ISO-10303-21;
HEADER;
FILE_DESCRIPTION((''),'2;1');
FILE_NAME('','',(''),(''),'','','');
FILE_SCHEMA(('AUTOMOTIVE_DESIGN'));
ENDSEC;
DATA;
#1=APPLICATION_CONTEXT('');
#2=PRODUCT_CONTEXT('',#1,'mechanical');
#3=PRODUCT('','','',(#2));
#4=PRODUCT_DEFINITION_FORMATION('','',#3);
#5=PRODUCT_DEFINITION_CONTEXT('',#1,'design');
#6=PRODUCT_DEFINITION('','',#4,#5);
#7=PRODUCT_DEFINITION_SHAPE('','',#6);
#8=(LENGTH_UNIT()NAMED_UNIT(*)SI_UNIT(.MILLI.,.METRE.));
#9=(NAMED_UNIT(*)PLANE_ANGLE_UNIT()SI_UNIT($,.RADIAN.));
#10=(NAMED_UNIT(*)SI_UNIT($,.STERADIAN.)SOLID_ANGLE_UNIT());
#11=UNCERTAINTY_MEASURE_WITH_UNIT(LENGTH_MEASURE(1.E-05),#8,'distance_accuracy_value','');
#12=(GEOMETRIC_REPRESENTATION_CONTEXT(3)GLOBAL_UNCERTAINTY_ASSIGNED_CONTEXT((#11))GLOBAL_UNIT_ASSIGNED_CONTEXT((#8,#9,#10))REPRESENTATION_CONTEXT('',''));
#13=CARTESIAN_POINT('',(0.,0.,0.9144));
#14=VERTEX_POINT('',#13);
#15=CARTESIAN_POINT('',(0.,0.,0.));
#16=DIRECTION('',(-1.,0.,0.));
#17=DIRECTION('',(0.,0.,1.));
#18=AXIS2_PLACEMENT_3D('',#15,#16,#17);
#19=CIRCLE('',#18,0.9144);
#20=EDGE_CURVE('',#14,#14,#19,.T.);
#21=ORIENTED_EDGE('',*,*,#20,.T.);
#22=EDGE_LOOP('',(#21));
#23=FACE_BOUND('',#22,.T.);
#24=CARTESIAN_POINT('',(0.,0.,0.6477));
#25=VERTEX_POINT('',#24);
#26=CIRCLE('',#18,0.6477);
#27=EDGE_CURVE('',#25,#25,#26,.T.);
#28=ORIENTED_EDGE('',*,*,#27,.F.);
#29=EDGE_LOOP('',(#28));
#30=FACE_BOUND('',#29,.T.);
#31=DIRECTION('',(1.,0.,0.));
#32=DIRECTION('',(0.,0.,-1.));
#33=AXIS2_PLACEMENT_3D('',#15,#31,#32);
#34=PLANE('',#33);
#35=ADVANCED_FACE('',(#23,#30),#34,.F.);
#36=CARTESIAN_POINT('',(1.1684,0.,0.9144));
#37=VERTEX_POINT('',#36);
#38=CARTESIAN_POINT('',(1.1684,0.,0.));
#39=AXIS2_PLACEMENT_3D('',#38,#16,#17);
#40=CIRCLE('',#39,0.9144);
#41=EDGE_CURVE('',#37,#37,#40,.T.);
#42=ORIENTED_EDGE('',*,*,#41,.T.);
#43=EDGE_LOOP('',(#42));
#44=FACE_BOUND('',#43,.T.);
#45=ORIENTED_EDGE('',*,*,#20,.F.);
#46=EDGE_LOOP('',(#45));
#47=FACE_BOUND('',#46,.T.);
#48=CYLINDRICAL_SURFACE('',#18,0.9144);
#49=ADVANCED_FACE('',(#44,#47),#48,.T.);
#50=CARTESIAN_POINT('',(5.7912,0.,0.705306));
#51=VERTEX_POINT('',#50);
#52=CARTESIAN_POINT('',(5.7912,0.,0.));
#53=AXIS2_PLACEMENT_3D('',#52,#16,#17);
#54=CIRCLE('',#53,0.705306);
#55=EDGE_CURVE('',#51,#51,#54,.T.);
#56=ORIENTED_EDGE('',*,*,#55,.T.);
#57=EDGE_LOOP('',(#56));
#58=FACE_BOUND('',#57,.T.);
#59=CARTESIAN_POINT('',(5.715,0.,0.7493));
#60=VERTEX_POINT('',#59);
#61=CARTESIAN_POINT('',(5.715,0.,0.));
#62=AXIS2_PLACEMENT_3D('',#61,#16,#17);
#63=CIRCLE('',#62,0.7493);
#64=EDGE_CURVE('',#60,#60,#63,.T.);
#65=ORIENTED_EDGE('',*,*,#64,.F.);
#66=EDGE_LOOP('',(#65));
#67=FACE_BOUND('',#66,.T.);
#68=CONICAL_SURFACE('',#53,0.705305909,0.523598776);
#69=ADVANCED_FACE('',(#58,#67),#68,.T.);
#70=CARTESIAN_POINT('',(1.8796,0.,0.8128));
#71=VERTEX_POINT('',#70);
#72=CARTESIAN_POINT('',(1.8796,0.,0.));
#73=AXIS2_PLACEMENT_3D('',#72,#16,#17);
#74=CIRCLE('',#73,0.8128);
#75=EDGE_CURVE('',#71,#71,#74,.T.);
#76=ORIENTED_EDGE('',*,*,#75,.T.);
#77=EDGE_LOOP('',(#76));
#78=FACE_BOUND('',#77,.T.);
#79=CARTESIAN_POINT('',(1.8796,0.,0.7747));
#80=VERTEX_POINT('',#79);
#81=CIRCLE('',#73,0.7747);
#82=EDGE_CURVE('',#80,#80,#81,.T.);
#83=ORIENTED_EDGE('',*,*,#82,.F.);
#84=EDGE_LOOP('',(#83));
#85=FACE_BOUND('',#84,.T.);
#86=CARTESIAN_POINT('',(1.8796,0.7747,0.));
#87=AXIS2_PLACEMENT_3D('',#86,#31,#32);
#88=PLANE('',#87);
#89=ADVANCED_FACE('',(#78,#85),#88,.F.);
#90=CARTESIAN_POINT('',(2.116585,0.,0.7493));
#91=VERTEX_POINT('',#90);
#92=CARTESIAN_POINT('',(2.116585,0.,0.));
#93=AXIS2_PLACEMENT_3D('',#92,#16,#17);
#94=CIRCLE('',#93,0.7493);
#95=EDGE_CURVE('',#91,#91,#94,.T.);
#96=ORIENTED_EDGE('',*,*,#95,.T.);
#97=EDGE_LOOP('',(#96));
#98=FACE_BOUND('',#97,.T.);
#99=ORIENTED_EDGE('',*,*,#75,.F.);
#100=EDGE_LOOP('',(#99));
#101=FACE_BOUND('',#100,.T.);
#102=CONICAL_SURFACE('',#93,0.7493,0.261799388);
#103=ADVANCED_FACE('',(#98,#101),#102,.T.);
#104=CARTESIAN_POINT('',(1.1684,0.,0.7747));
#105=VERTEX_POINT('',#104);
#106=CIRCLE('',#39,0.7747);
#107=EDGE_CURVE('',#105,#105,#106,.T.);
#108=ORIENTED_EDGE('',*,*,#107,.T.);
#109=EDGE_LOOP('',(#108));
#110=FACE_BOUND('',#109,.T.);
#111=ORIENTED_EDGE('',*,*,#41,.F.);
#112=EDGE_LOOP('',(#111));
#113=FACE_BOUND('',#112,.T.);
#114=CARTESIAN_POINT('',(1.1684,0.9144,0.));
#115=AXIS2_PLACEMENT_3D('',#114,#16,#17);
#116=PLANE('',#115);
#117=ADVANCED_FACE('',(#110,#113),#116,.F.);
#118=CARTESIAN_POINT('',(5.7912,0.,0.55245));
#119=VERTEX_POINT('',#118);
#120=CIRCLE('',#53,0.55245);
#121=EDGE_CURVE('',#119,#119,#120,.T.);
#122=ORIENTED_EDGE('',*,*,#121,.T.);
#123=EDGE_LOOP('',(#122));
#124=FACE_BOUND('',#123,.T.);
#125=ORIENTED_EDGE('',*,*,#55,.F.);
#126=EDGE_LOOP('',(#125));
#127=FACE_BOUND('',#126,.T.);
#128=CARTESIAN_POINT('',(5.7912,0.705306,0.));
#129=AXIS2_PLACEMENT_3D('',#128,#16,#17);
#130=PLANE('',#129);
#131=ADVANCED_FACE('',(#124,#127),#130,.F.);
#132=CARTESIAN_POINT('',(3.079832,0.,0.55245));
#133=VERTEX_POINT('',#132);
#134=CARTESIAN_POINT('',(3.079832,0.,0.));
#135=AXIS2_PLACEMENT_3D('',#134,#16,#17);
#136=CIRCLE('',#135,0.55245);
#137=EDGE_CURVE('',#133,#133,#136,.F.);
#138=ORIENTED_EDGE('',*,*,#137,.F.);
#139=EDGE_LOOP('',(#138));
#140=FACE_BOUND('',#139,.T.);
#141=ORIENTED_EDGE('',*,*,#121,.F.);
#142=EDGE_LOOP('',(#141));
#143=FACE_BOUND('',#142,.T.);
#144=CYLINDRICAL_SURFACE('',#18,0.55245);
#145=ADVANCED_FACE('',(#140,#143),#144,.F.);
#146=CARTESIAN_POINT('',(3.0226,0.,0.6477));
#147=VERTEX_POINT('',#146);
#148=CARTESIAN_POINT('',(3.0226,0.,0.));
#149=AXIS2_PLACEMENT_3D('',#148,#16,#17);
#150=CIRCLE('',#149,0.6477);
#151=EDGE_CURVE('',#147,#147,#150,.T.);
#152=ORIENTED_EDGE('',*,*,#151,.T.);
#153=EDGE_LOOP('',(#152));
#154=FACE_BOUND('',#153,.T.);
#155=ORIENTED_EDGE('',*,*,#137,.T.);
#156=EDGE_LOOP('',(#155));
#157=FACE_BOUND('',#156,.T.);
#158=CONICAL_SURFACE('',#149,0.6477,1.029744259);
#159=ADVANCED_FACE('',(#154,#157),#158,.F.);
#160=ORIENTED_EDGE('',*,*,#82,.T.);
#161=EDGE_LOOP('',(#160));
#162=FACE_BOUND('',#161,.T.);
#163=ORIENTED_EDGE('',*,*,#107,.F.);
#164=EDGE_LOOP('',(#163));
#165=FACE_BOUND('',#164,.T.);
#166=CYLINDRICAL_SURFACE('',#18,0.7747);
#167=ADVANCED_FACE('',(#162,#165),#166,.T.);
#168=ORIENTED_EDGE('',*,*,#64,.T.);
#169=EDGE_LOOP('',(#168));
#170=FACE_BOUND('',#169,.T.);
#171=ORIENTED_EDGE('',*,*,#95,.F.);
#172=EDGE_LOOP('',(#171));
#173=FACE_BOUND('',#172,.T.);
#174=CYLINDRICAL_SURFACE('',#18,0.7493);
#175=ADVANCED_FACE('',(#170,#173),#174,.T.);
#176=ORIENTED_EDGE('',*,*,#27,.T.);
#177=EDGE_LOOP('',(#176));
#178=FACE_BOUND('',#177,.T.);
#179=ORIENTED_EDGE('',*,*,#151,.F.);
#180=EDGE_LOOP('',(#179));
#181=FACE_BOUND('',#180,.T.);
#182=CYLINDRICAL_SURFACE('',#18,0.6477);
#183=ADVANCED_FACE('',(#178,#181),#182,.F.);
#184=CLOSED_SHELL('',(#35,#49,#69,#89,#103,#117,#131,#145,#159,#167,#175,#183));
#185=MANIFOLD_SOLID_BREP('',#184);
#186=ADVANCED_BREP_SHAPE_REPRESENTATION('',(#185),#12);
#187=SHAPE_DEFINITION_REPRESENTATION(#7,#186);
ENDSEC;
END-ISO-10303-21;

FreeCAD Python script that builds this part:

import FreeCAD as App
import Part
import Sketcher

V = App.Vector
Q = App.Units.Quantity


def add_polygon(sketch, points):
    """Adds a closed chain of lines whose ends are joined by coincident constraints."""
    first, n = sketch.GeometryCount, len(points)
    for a, b in zip(points, points[1:] + points[:1]):
        sketch.addGeometry(Part.LineSegment(App.Vector(*a, 0), App.Vector(*b, 0)), False)
    for i in range(n):
        sketch.addConstraint(Sketcher.Constraint("Coincident", first + i, 2, first + (i + 1) % n, 1))

doc = App.newDocument("Part")
body = doc.addObject("PartDesign::Body", "Body")

# Sketch on XY plane
sketch1 = doc.addObject("Sketcher::SketchObject", "Sketch")
body.addObject(sketch1)
sketch1.AttachmentSupport = (doc.XY_Plane, [""])
sketch1.MapMode = "FlatFace"
add_polygon(sketch1, [(0, 0.9144), (0, 0), (5.7912, 0), (5.7912, 0.705306), (5.715, 0.7493), (2.116585, 0.7493), (1.8796, 0.8128), (1.8796, 0.7747), (1.1684, 0.7747), (1.1684, 0.9144)])  # lines 0-9
sketch1.addConstraint([
    Sketcher.Constraint("Vertical", 0),
    Sketcher.Constraint("Horizontal", 1),
    Sketcher.Constraint("Vertical", 2),
    Sketcher.Constraint("Horizontal", 4),
    Sketcher.Constraint("Vertical", 6),
    Sketcher.Constraint("Horizontal", 7),
    Sketcher.Constraint("Vertical", 8),
    Sketcher.Constraint("Horizontal", 9),
    Sketcher.Constraint("Coincident", 0, 2, -1, 1),
    Sketcher.Constraint("Angle", 3, Q("150 deg")),
    Sketcher.Constraint("Angle", 5, Q("165 deg")),
    Sketcher.Constraint("DistanceX", 1, 1, 1, 2, Q("0.228 in")),
    Sketcher.Constraint("DistanceX", 7, 2, 7, 1, Q("0.028 in")),
    Sketcher.Constraint("DistanceX", 9, 2, 9, 1, Q("0.046 in")),
    Sketcher.Constraint("DistanceY", 0, 2, 0, 1, Q("0.036 in")),
    Sketcher.Constraint("DistanceY", 6, 2, 6, 1, Q("0.0015 in")),
    Sketcher.Constraint("DistanceY", 8, 1, 8, 2, Q("0.0055 in")),
    Sketcher.Constraint("DistanceX", -1, 1, 3, 2, Q("0.225 in")),
    Sketcher.Constraint("DistanceY", 4, 2, 6, 2, Q("0.001 in")),
])
revolution = doc.addObject("PartDesign::Revolution", "Revolution")
body.addObject(revolution)
revolution.Profile = sketch1
revolution.ReferenceAxis = (sketch1, ["H_Axis"])
revolution.Angle = 360

# Sketch on YZ plane
sketch2 = doc.addObject("Sketcher::SketchObject", "Sketch001")
body.addObject(sketch2)
sketch2.AttachmentSupport = (doc.YZ_Plane, [""])
sketch2.MapMode = "FlatFace"
sketch2.addGeometry(Part.Circle(V(0, 0, 0), V(0, 0, 1), 0.6477), False)
sketch2.addConstraint([
    Sketcher.Constraint("Coincident", 0, 3, -1, 1),
    Sketcher.Constraint("Diameter", 0, Q("0.051 in")),
])
doc.recompute()
hole = doc.addObject("PartDesign::Hole", "Hole")
body.addObject(hole)
hole.Profile = sketch2
hole.ThreadType = "None"
hole.Diameter = Q("0.051 in")
hole.DepthType = "Dimension"
hole.Depth = Q("0.119 in")
hole.DrillPoint = "Angled"
hole.DrillPointAngle = 118
hole.Reversed = True

# Sketch on YZ plane
sketch3 = doc.addObject("Sketcher::SketchObject", "Sketch002")
body.addObject(sketch3)
sketch3.AttachmentSupport = (doc.YZ_Plane, [""])
sketch3.MapMode = "FlatFace"
sketch3.addGeometry(Part.Circle(V(0, 0, 0), V(0, 0, 1), 0.55245), False)
sketch3.addConstraint([
    Sketcher.Constraint("Coincident", 0, 3, -1, 1),
    Sketcher.Constraint("Diameter", 0, Q("0.0435 in")),
])
doc.recompute()
hole2 = doc.addObject("PartDesign::Hole", "Hole001")
body.addObject(hole2)
hole2.Profile = sketch3
hole2.ThreadType = "None"
hole2.Diameter = Q("0.0435 in")
hole2.DepthType = "Dimension"
hole2.Depth = Q("0.228 in")
hole2.DrillPoint = "Angled"
hole2.DrillPointAngle = 118
hole2.Reversed = True

doc.recompute()
